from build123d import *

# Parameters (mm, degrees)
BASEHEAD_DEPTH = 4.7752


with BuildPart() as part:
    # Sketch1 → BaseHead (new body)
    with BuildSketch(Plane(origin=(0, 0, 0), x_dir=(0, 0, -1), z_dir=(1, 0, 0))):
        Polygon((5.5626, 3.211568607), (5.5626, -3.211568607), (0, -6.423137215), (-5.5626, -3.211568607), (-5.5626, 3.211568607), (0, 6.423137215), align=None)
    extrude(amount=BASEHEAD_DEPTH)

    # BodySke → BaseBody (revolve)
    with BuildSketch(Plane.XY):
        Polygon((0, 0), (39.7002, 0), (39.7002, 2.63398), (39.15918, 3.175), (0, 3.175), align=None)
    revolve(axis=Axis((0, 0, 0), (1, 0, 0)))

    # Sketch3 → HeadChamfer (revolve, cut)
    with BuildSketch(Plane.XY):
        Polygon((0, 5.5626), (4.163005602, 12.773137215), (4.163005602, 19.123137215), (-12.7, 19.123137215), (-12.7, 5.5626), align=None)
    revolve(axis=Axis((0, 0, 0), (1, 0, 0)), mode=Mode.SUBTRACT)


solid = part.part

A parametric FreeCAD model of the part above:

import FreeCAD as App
import Part
import Sketcher
Q = App.Units.Quantity

doc = App.newDocument("Part")
params = doc.addObject("Spreadsheet::Sheet", "Params")
for row, (alias, value) in enumerate([
    ("pad1_length", "0.188 in"),
    ("sketch2_width", "1.563 in"),
    ("sketch2_height", "0.125 in"),
    ("revolution_angle", "360 deg"),
    ("sketch3_width", "0.5 in"),
    ("sketch3_height", "0.25 in"),
    ("groove_angle", "360 deg"),
], start=1):
    params.set(f"A{row}", alias)
    params.set(f"B{row}", "=" + value)
    params.setAlias(f"B{row}", alias)

body = doc.addObject("PartDesign::Body", "Body")

# Sketch on YZ plane
sketch1 = body.newObject("Sketcher::SketchObject", "Sketch")
sketch1.AttachmentSupport = (doc.getObject("YZ_Plane"), [""])
sketch1.MapMode = "FlatFace"
sketch1.addGeometry([
    Part.LineSegment(App.Vector(-3, -6, 0), App.Vector(3, -6, 0)),  # 0
    Part.LineSegment(App.Vector(3, -6, 0), App.Vector(6, 0, 0)),  # 1
    Part.LineSegment(App.Vector(6, 0, 0), App.Vector(3, 6, 0)),  # 2
    Part.LineSegment(App.Vector(3, 6, 0), App.Vector(-3, 6, 0)),  # 3
    Part.LineSegment(App.Vector(-3, 6, 0), App.Vector(-6, 0, 0)),  # 4
    Part.LineSegment(App.Vector(-6, 0, 0), App.Vector(-3, -6, 0)),  # 5
], False)
sketch1.addConstraint([
    Sketcher.Constraint("Coincident", 0, 2, 1, 1),
    Sketcher.Constraint("Coincident", 1, 2, 2, 1),
    Sketcher.Constraint("Coincident", 2, 2, 3, 1),
    Sketcher.Constraint("Coincident", 3, 2, 4, 1),
    Sketcher.Constraint("Coincident", 4, 2, 5, 1),
    Sketcher.Constraint("Coincident", 5, 2, 0, 1),
    Sketcher.Constraint("Horizontal", 0),
    Sketcher.Constraint("Horizontal", 3),
    Sketcher.Constraint("Symmetric", 0, 2, 3, 2, -1, 1),
    Sketcher.Constraint("Symmetric", 1, 2, 4, 2, -1, 1),
    Sketcher.Constraint("PointOnObject", 1, 2, -1),
    Sketcher.Constraint("Parallel", 2, 5),
    Sketcher.Constraint("Vertical", 0, 2, 2, 2),
    Sketcher.Constraint("Angle", 1, Q("60 deg")),
    Sketcher.Constraint("DistanceY", 0, 2, -1, 1, Q("0.219 in")),
    Sketcher.Constraint("DistanceX", 0, 1, 0, 2, 6.423137),
])
pad1 = body.newObject("PartDesign::Pad", "Pad")
pad1.Profile = sketch1
pad1.setExpression("Length", "Params.pad1_length")

# Sketch on XY plane
sketch2 = body.newObject("Sketcher::SketchObject", "Sketch001")
sketch2.AttachmentSupport = (doc.getObject("XY_Plane"), [""])
sketch2.MapMode = "FlatFace"
sketch2.addGeometry([
    Part.LineSegment(App.Vector(0, 0, 0), App.Vector(39.7, 0, 0)),  # 0
    Part.LineSegment(App.Vector(39.7, 0, 0), App.Vector(39.7, 2.6, 0)),  # 1
    Part.LineSegment(App.Vector(39.7, 2.6, 0), App.Vector(39.2, 3.2, 0)),  # 2
    Part.LineSegment(App.Vector(39.2, 3.2, 0), App.Vector(0, 3.2, 0)),  # 3
    Part.LineSegment(App.Vector(0, 3.2, 0), App.Vector(0, 0, 0)),  # 4
], False)
sketch2.addConstraint([
    Sketcher.Constraint("Coincident", 0, 2, 1, 1),
    Sketcher.Constraint("Coincident", 1, 2, 2, 1),
    Sketcher.Constraint("Coincident", 2, 2, 3, 1),
    Sketcher.Constraint("Coincident", 3, 2, 4, 1),
    Sketcher.Constraint("Coincident", 4, 2, 0, 1),
    Sketcher.Constraint("Horizontal", 0),
    Sketcher.Constraint("Vertical", 1),
    Sketcher.Constraint("Horizontal", 3),
    Sketcher.Constraint("Vertical", 4),
    Sketcher.Constraint("Coincident", 4, 2, -1, 1),
    Sketcher.Constraint("Angle", 2, Q("135 deg")),
    Sketcher.Constraint("DistanceX", 0, 1, 0, 2, Q("1.563 in")),
    Sketcher.Constraint("DistanceY", 4, 2, 4, 1, Q("0.125 in")),
    Sketcher.Constraint("DistanceX", 3, 2, 3, 1, Q("1.5417 in")),
])
sketch2.setExpression("Constraints[11]", "Params.sketch2_width")
sketch2.setExpression("Constraints[12]", "Params.sketch2_height")
revolution = body.newObject("PartDesign::Revolution", "Revolution")
revolution.Profile = sketch2
revolution.ReferenceAxis = (sketch2, ["H_Axis"])
revolution.setExpression("Angle", "Params.revolution_angle")

# Sketch on XY plane
sketch3 = body.newObject("Sketcher::SketchObject", "Sketch002")
sketch3.AttachmentSupport = (doc.getObject("XY_Plane"), [""])
sketch3.MapMode = "FlatFace"
sketch3.addGeometry([
    Part.LineSegment(App.Vector(0, 6, 0), App.Vector(4, 13, 0)),  # 0
    Part.LineSegment(App.Vector(4, 13, 0), App.Vector(4, 19, 0)),  # 1
    Part.LineSegment(App.Vector(4, 19, 0), App.Vector(-13, 19, 0)),  # 2
    Part.LineSegment(App.Vector(-13, 19, 0), App.Vector(-13, 6, 0)),  # 3
    Part.LineSegment(App.Vector(-13, 6, 0), App.Vector(0, 6, 0)),  # 4
], False)
sketch3.addConstraint([
    Sketcher.Constraint("Coincident", 0, 2, 1, 1),
    Sketcher.Constraint("Coincident", 1, 2, 2, 1),
    Sketcher.Constraint("Coincident", 2, 2, 3, 1),
    Sketcher.Constraint("Coincident", 3, 2, 4, 1),
    Sketcher.Constraint("Coincident", 4, 2, 0, 1),
    Sketcher.Constraint("Vertical", 1),
    Sketcher.Constraint("Horizontal", 2),
    Sketcher.Constraint("Vertical", 3),
    Sketcher.Constraint("Horizontal", 4),
    Sketcher.Constraint("PointOnObject", 4, 2, -2),
    Sketcher.Constraint("DistanceX", 4, 1, 4, 2, Q("0.5 in")),
    Sketcher.Constraint("Angle", 0, Q("60 deg")),
    Sketcher.Constraint("DistanceY", 1, 1, 1, 2, Q("0.25 in")),
    Sketcher.Constraint("DistanceY", -1, 1, 3, 2, Q("0.219 in")),
    Sketcher.Constraint("Distance", 0, 8.326011),
])
sketch3.setExpression("Constraints[10]", "Params.sketch3_width")
sketch3.setExpression("Constraints[12]", "Params.sketch3_height")
groove = body.newObject("PartDesign::Groove", "Groove")
groove.Profile = sketch3
groove.ReferenceAxis = (sketch3, ["H_Axis"])
groove.setExpression("Angle", "Params.groove_angle")

doc.recompute()
